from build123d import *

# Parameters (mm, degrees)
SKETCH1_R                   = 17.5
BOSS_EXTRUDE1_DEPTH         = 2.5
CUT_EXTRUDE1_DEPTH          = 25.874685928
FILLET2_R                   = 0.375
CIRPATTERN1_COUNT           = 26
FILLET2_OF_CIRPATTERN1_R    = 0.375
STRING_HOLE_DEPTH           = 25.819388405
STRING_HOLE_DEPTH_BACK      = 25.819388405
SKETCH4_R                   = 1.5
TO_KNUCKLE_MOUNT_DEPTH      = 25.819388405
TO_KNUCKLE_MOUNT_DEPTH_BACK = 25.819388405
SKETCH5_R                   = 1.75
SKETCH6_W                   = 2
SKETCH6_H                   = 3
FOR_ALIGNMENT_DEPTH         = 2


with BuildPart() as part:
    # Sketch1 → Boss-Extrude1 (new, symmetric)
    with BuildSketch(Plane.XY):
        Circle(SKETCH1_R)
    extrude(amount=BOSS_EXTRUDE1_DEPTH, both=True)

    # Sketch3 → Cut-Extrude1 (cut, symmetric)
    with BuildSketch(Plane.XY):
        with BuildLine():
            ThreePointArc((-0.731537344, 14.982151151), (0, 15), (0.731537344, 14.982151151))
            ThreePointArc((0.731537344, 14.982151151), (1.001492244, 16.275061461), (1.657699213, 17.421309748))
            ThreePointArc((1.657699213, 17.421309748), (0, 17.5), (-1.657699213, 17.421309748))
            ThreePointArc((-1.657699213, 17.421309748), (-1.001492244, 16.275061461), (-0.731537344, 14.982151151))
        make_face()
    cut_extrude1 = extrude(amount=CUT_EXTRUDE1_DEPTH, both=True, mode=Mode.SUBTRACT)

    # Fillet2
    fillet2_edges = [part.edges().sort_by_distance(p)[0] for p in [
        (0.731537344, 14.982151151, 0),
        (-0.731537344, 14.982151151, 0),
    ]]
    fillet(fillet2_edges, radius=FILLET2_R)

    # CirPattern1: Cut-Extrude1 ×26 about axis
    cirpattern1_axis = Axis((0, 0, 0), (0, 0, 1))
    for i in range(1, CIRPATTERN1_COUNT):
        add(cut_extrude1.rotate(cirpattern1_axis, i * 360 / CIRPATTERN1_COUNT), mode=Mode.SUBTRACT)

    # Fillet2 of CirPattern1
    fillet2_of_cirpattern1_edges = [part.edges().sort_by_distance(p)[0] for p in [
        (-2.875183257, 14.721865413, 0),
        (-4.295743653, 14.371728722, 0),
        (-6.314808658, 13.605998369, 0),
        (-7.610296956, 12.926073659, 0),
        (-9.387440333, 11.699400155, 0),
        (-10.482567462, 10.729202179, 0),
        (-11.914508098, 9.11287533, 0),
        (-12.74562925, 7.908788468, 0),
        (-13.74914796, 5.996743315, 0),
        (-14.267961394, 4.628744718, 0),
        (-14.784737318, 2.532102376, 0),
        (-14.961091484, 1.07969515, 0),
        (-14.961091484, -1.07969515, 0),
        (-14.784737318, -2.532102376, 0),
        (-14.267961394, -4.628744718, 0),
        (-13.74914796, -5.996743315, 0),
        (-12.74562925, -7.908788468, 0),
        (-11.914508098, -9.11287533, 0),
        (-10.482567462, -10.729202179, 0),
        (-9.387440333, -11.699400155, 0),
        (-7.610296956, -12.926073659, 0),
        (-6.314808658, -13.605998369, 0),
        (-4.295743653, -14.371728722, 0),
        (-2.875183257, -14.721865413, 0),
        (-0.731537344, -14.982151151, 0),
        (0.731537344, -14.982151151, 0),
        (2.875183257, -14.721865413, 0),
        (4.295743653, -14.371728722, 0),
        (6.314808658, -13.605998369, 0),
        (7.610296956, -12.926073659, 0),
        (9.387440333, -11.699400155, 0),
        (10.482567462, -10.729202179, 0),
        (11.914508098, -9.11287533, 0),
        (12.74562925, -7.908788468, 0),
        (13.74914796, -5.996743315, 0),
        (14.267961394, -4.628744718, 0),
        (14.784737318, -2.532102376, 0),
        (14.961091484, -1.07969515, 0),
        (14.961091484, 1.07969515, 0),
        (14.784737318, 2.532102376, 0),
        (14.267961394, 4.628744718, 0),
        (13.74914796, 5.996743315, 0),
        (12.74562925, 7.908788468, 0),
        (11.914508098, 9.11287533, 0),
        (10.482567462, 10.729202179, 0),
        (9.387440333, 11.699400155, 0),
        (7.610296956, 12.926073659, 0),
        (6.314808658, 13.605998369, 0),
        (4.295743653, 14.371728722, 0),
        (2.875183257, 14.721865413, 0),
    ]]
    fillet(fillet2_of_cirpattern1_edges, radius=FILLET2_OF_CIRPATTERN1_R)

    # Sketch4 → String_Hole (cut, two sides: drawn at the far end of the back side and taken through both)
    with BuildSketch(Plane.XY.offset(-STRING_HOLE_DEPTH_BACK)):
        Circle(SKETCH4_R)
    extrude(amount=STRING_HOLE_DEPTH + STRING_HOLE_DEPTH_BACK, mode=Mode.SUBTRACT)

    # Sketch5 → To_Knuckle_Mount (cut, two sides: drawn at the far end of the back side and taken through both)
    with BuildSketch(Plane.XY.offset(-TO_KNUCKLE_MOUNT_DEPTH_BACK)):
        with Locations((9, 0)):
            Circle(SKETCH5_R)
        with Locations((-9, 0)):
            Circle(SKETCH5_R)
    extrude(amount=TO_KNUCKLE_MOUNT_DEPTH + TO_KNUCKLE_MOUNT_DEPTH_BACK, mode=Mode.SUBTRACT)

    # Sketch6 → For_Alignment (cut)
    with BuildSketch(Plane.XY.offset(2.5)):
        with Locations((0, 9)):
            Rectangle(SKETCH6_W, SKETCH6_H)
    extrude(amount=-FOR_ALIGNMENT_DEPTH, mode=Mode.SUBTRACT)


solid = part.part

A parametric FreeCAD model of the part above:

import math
import FreeCAD as App
import Part
import Sketcher
from FreeCAD import Vector


def edges_at(feature, points):
    """Names of the edges that pass closest to the given points."""
    edges = feature.Shape.Edges
    near = lambda p: min(range(len(edges)), key=lambda i: edges[i].distToShape(Part.Vertex(*p))[0])
    return sorted({f"Edge{near(p) + 1}" for p in points})

doc = App.newDocument("Part")
body = doc.addObject("PartDesign::Body", "Body")

sketch1 = doc.addObject("Sketcher::SketchObject", "Sketch")
body.addObject(sketch1)
sketch1.AttachmentSupport = (doc.XY_Plane, [""])
sketch1.MapMode = "FlatFace"
sketch1.addGeometry(Part.Circle(Vector(0, 0, 0), Vector(0, 0, 1), 18), False)
sketch1.addConstraint(Sketcher.Constraint("Coincident", 0, 3, -1, 1))
sketch1.addConstraint(Sketcher.Constraint("Diameter", 0, 35.0))
pad1 = doc.addObject("PartDesign::Pad", "Pad")
body.addObject(pad1)
pad1.Profile = sketch1
pad1.Length = 5
pad1.Midplane = True

sketch2 = doc.addObject("Sketcher::SketchObject", "Sketch001")
body.addObject(sketch2)
sketch2.AttachmentSupport = (doc.XY_Plane, [""])
sketch2.MapMode = "FlatFace"
sketch2.addGeometry(Part.ArcOfCircle(Part.Circle(Vector(0, 0, 0), Vector(0, 0, 1), 15), math.radians(87.2), math.radians(92.8)), False)
sketch2.addGeometry(Part.ArcOfCircle(Part.Circle(Vector(4.9, 14.8, 0), Vector(0, 0, 1), 4.2), math.radians(141), math.radians(177)), False)
sketch2.addGeometry(Part.ArcOfCircle(Part.Circle(Vector(0, 0, 0), Vector(0, 0, 1), 17.5), math.radians(84.56), math.radians(95.44)), False)
sketch2.addGeometry(Part.ArcOfCircle(Part.Circle(Vector(-4.9, 14.8, 0), Vector(0, 0, 1), 4.2), math.radians(3), math.radians(39)), False)
sketch2.addConstraint(Sketcher.Constraint("Coincident", 0, 1, 1, 2))
sketch2.addConstraint(Sketcher.Constraint("Coincident", 1, 1, 2, 1))
sketch2.addConstraint(Sketcher.Constraint("Coincident", 2, 2, 3, 2))
sketch2.addConstraint(Sketcher.Constraint("Coincident", 3, 1, 0, 2))
sketch2.addConstraint(Sketcher.Constraint("Coincident", 0, 3, -1, 1))
sketch2.addConstraint(Sketcher.Constraint("Coincident", 2, 3, -1, 1))
sketch2.addConstraint(Sketcher.Constraint("Equal", 1, 3))
sketch2.addConstraint(Sketcher.Constraint("Symmetric", 1, 3, 3, 3, -2))
sketch2.addConstraint(Sketcher.Constraint("Radius", 0, 15.0))
sketch2.addConstraint(Sketcher.Constraint("Radius", 2, 17.5))
sketch2.addConstraint(Sketcher.Constraint("Radius", 1, 4.222327))
sketch2.addConstraint(Sketcher.Constraint("DistanceX", -1, 1, 1, 1, 1.657699))
sketch2.addConstraint(Sketcher.Constraint("DistanceX", -1, 1, 1, 3, 4.94884))
pocket1 = doc.addObject("PartDesign::Pocket", "Pocket")
body.addObject(pocket1)
pocket1.Profile = sketch2
pocket1.Length = 51.749372
pocket1.Midplane = True
doc.recompute()

fillet = doc.addObject("PartDesign::Fillet", "Fillet")
body.addObject(fillet)
fillet.Base = (pocket1, edges_at(pocket1, [(0.732, 14.982, 0), (-0.732, 14.982, 0)]))
fillet.Radius = 0.375
doc.recompute()

polarpattern = doc.addObject("PartDesign::PolarPattern", "PolarPattern")
body.addObject(polarpattern)
polarpattern.Originals = [pocket1]
polarpattern.Axis = (doc.Z_Axis, [""])
polarpattern.Angle = 360
polarpattern.Occurrences = 26
body.Tip = polarpattern
doc.recompute()

fillet2 = doc.addObject("PartDesign::Fillet", "Fillet001")
body.addObject(fillet2)
fillet2.Base = (polarpattern, edges_at(polarpattern, [
    (-2.875, 14.722, 0),
    (-4.296, 14.372, 0),
    (-6.315, 13.606, 0),
    (-7.61, 12.926, 0),
    (-9.387, 11.699, 0),
    (-10.483, 10.729, 0),
    (-11.915, 9.113, 0),
    (-12.746, 7.909, 0),
    (-13.749, 5.997, 0),
    (-14.268, 4.629, 0),
    (-14.785, 2.532, 0),
    (-14.961, 1.08, 0),
    (-14.961, -1.08, 0),
    (-14.785, -2.532, 0),
    (-14.268, -4.629, 0),
    (-13.749, -5.997, 0),
    (-12.746, -7.909, 0),
    (-11.915, -9.113, 0),
    (-10.483, -10.729, 0),
    (-9.387, -11.699, 0),
    (-7.61, -12.926, 0),
    (-6.315, -13.606, 0),
    (-4.296, -14.372, 0),
    (-2.875, -14.722, 0),
    (-0.732, -14.982, 0),
    (0.732, -14.982, 0),
    (2.875, -14.722, 0),
    (4.296, -14.372, 0),
    (6.315, -13.606, 0),
    (7.61, -12.926, 0),
    (9.387, -11.699, 0),
    (10.483, -10.729, 0),
    (11.915, -9.113, 0),
    (12.746, -7.909, 0),
    (13.749, -5.997, 0),
    (14.268, -4.629, 0),
    (14.785, -2.532, 0),
    (14.961, -1.08, 0),
    (14.961, 1.08, 0),
    (14.785, 2.532, 0),
    (14.268, 4.629, 0),
    (13.749, 5.997, 0),
    (12.746, 7.909, 0),
    (11.915, 9.113, 0),
    (10.483, 10.729, 0),
    (9.387, 11.699, 0),
    (7.61, 12.926, 0),
    (6.315, 13.606, 0),
    (4.296, 14.372, 0),
    (2.875, 14.722, 0),
]))
fillet2.Radius = 0.375

sketch3 = doc.addObject("Sketcher::SketchObject", "Sketch002")
body.addObject(sketch3)
sketch3.AttachmentSupport = (doc.XY_Plane, [""])
sketch3.MapMode = "FlatFace"
sketch3.addGeometry(Part.Circle(Vector(0, 0, 0), Vector(0, 0, 1), 1.5), False)
sketch3.addConstraint(Sketcher.Constraint("Coincident", 0, 3, -1, 1))
sketch3.addConstraint(Sketcher.Constraint("Diameter", 0, 3.0))
pocket2 = doc.addObject("PartDesign::Pocket", "Pocket001")
body.addObject(pocket2)
pocket2.Profile = sketch3
pocket2.Type = "ThroughAll"
pocket2.Midplane = True

sketch4 = doc.addObject("Sketcher::SketchObject", "Sketch003")
body.addObject(sketch4)
sketch4.AttachmentSupport = (doc.XY_Plane, [""])
sketch4.MapMode = "FlatFace"
sketch4.addGeometry(Part.Circle(Vector(9, 0, 0), Vector(0, 0, 1), 1.8), False)
sketch4.addGeometry(Part.Circle(Vector(-9, 0, 0), Vector(0, 0, 1), 1.8), False)
sketch4.addConstraint(Sketcher.Constraint("Equal", 0, 1))
sketch4.addConstraint(Sketcher.Constraint("Symmetric", 0, 3, 1, 3, -1, 1))
sketch4.addConstraint(Sketcher.Constraint("PointOnObject", 0, 3, -1))
sketch4.addConstraint(Sketcher.Constraint("Diameter", 0, 3.5))
sketch4.addConstraint(Sketcher.Constraint("DistanceX", -1, 1, 0, 3, 9.0))
pocket3 = doc.addObject("PartDesign::Pocket", "Pocket002")
body.addObject(pocket3)
pocket3.Profile = sketch4
pocket3.Type = "ThroughAll"
pocket3.Midplane = True

sketch5 = doc.addObject("Sketcher::SketchObject", "Sketch004")
body.addObject(sketch5)
sketch5.AttachmentSupport = (doc.XY_Plane, [""])
sketch5.MapMode = "FlatFace"
sketch5.AttachmentOffset = App.Placement(Vector(0, 0, 2.5), App.Rotation())
sketch5.addGeometry(Part.LineSegment(Vector(-1, 10.5, 0), Vector(-1, 7.5, 0)), False)
sketch5.addGeometry(Part.LineSegment(Vector(-1, 7.5, 0), Vector(1, 7.5, 0)), False)
sketch5.addGeometry(Part.LineSegment(Vector(1, 7.5, 0), Vector(1, 10.5, 0)), False)
sketch5.addGeometry(Part.LineSegment(Vector(1, 10.5, 0), Vector(-1, 10.5, 0)), False)
sketch5.addConstraint(Sketcher.Constraint("Coincident", 0, 2, 1, 1))
sketch5.addConstraint(Sketcher.Constraint("Coincident", 1, 2, 2, 1))
sketch5.addConstraint(Sketcher.Constraint("Coincident", 2, 2, 3, 1))
sketch5.addConstraint(Sketcher.Constraint("Coincident", 3, 2, 0, 1))
sketch5.addConstraint(Sketcher.Constraint("Vertical", 0))
sketch5.addConstraint(Sketcher.Constraint("Horizontal", 1))
sketch5.addConstraint(Sketcher.Constraint("Vertical", 2))
sketch5.addConstraint(Sketcher.Constraint("Horizontal", 3))
sketch5.addConstraint(Sketcher.Constraint("DistanceX", 1, 1, 1, 2, 2.0))
sketch5.addConstraint(Sketcher.Constraint("DistanceY", 0, 2, 0, 1, 3.0))
sketch5.addConstraint(Sketcher.Constraint("DistanceX", 0, 2, -1, 1, 1.0))
sketch5.addConstraint(Sketcher.Constraint("DistanceY", -1, 1, 0, 2, 7.5))
pocket4 = doc.addObject("PartDesign::Pocket", "Pocket003")
body.addObject(pocket4)
pocket4.Profile = sketch5
pocket4.Length = 2

doc.recompute()
